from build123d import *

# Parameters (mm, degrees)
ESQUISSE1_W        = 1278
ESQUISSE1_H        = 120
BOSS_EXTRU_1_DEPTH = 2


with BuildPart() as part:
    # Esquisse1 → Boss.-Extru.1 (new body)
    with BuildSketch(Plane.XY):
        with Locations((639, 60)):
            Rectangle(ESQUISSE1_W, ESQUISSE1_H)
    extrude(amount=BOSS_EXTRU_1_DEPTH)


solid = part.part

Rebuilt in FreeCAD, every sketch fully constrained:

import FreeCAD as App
import Part
import Sketcher
from FreeCAD import Vector
Q = App.Units.Quantity

doc = App.newDocument("Part")
body = doc.addObject("PartDesign::Body", "Body")

# Sketch on XY plane
sketch1 = body.newObject("Sketcher::SketchObject", "Sketch")
sketch1.AttachmentSupport = (doc.getObject("XY_Plane"), [""])
sketch1.MapMode = "FlatFace"
sketch1.addGeometry(Part.LineSegment(Vector(0, 120, 0), Vector(0, 0, 0)), False)
sketch1.addGeometry(Part.LineSegment(Vector(0, 0, 0), Vector(1278, 0, 0)), False)
sketch1.addGeometry(Part.LineSegment(Vector(1278, 0, 0), Vector(1278, 120, 0)), False)
sketch1.addGeometry(Part.LineSegment(Vector(1278, 120, 0), Vector(0, 120, 0)), False)
sketch1.addConstraint(Sketcher.Constraint("Coincident", 0, 2, 1, 1))
sketch1.addConstraint(Sketcher.Constraint("Coincident", 1, 2, 2, 1))
sketch1.addConstraint(Sketcher.Constraint("Coincident", 2, 2, 3, 1))
sketch1.addConstraint(Sketcher.Constraint("Coincident", 3, 2, 0, 1))
sketch1.addConstraint(Sketcher.Constraint("Vertical", 0))
sketch1.addConstraint(Sketcher.Constraint("Horizontal", 1))
sketch1.addConstraint(Sketcher.Constraint("Vertical", 2))
sketch1.addConstraint(Sketcher.Constraint("Horizontal", 3))
sketch1.addConstraint(Sketcher.Constraint("Coincident", 0, 2, -1, 1))
sketch1.addConstraint(Sketcher.Constraint("DistanceX", 1, 1, 1, 2, Q("1278 mm")))
sketch1.addConstraint(Sketcher.Constraint("DistanceY", 0, 2, 0, 1, Q("120 mm")))
pad1 = body.newObject("PartDesign::Pad", "Pad")
pad1.Profile = sketch1
pad1.Length = 2

doc.recompute()
